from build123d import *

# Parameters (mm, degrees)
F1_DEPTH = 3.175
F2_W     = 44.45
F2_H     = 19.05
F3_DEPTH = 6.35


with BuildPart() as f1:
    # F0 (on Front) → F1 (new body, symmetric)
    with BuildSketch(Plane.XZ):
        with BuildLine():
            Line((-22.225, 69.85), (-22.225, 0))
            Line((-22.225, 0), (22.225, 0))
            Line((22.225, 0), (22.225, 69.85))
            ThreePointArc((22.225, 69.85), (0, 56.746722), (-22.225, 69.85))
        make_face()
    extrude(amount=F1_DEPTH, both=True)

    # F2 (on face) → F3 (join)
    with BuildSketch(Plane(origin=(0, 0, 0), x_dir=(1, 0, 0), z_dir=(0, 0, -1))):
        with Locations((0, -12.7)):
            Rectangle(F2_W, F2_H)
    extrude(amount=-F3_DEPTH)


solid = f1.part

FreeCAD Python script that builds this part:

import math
import FreeCAD as App
import Part
import Sketcher
from FreeCAD import Vector
Q = App.Units.Quantity


def add_polygon(sketch, points):
    """Adds a closed chain of lines whose ends are joined by coincident constraints."""
    first, n = sketch.GeometryCount, len(points)
    for a, b in zip(points, points[1:] + points[:1]):
        sketch.addGeometry(Part.LineSegment(App.Vector(*a, 0), App.Vector(*b, 0)), False)
    for i in range(n):
        sketch.addConstraint(Sketcher.Constraint("Coincident", first + i, 2, first + (i + 1) % n, 1))

doc = App.newDocument("Part")
params = doc.addObject("Spreadsheet::Sheet", "Params")
for row, (alias, value) in enumerate([
    ("sketch1_radius", "1 in"),
    ("sketch1_width", "1.75 in"),
    ("sketch1_height", "2.75 in"),
    ("pad1_length", "0.25 in"),
    ("sketch2_width", "1.75 in"),
    ("sketch2_height", "0.75 in"),
    ("pad2_length", "0.25 in"),
], start=1):
    params.set(f"A{row}", alias)
    params.set(f"B{row}", "=" + value)
    params.setAlias(f"B{row}", alias)

body = doc.addObject("PartDesign::Body", "Body")

sketch1 = body.newObject("Sketcher::SketchObject", "Sketch")
sketch1.AttachmentSupport = (doc.getObject("XZ_Plane"), [""])
sketch1.MapMode = "FlatFace"
sketch1.addGeometry([
    Part.LineSegment(Vector(-22, 70, 0), Vector(-22, 0, 0)),
    Part.LineSegment(Vector(-22, 0, 0), Vector(22, 0, 0)),
    Part.LineSegment(Vector(22, 0, 0), Vector(22, 70, 0)),
    Part.ArcOfCircle(Part.Circle(Vector(0, 82, 0), Vector(0, 0, 1), 25), math.radians(-151), math.radians(-29)),
], False)
sketch1.addConstraint([
    Sketcher.Constraint("Coincident", 0, 2, 1, 1),
    Sketcher.Constraint("Coincident", 1, 2, 2, 1),
    Sketcher.Constraint("Coincident", 2, 2, 3, 2),
    Sketcher.Constraint("Coincident", 3, 1, 0, 1),
    Sketcher.Constraint("Vertical", 0),
    Sketcher.Constraint("Horizontal", 1),
    Sketcher.Constraint("Vertical", 2),
    Sketcher.Constraint("Symmetric", 0, 2, 1, 2, -1, 1),
    Sketcher.Constraint("PointOnObject", 3, 3, -2),
    Sketcher.Constraint("Radius", 3, Q("1 in")),
    Sketcher.Constraint("DistanceX", 1, 1, 1, 2, Q("1.75 in")),
    Sketcher.Constraint("DistanceY", 0, 2, 0, 1, Q("2.75 in")),
])
sketch1.setExpression("Constraints[9]", "Params.sketch1_radius")
sketch1.setExpression("Constraints[10]", "Params.sketch1_width")
sketch1.setExpression("Constraints[11]", "Params.sketch1_height")
pad1 = body.newObject("PartDesign::Pad", "Pad")
pad1.Profile = sketch1
pad1.setExpression("Length", "Params.pad1_length")
pad1.Midplane = True

sketch2 = body.newObject("Sketcher::SketchObject", "Sketch001")
sketch2.AttachmentSupport = (doc.getObject("XY_Plane"), [""])
sketch2.MapMode = "FlatFace"
add_polygon(sketch2, [(-22, 3), (-22, 22), (22, 22), (22, 3)])
sketch2.addConstraint([
    Sketcher.Constraint("Vertical", 0),
    Sketcher.Constraint("Horizontal", 1),
    Sketcher.Constraint("Vertical", 2),
    Sketcher.Constraint("Horizontal", 3),
    Sketcher.Constraint("DistanceX", 1, 1, 1, 2, Q("1.75 in")),
    Sketcher.Constraint("DistanceY", 0, 1, 0, 2, Q("0.75 in")),
    Sketcher.Constraint("DistanceX", 0, 2, -1, 1, Q("0.875 in")),
    Sketcher.Constraint("DistanceY", -1, 1, 0, 2, Q("0.875 in")),
])
sketch2.setExpression("Constraints[8]", "Params.sketch2_width")
sketch2.setExpression("Constraints[9]", "Params.sketch2_height")
pad2 = body.newObject("PartDesign::Pad", "Pad001")
pad2.Profile = sketch2
pad2.setExpression("Length", "Params.pad2_length")

doc.recompute()
